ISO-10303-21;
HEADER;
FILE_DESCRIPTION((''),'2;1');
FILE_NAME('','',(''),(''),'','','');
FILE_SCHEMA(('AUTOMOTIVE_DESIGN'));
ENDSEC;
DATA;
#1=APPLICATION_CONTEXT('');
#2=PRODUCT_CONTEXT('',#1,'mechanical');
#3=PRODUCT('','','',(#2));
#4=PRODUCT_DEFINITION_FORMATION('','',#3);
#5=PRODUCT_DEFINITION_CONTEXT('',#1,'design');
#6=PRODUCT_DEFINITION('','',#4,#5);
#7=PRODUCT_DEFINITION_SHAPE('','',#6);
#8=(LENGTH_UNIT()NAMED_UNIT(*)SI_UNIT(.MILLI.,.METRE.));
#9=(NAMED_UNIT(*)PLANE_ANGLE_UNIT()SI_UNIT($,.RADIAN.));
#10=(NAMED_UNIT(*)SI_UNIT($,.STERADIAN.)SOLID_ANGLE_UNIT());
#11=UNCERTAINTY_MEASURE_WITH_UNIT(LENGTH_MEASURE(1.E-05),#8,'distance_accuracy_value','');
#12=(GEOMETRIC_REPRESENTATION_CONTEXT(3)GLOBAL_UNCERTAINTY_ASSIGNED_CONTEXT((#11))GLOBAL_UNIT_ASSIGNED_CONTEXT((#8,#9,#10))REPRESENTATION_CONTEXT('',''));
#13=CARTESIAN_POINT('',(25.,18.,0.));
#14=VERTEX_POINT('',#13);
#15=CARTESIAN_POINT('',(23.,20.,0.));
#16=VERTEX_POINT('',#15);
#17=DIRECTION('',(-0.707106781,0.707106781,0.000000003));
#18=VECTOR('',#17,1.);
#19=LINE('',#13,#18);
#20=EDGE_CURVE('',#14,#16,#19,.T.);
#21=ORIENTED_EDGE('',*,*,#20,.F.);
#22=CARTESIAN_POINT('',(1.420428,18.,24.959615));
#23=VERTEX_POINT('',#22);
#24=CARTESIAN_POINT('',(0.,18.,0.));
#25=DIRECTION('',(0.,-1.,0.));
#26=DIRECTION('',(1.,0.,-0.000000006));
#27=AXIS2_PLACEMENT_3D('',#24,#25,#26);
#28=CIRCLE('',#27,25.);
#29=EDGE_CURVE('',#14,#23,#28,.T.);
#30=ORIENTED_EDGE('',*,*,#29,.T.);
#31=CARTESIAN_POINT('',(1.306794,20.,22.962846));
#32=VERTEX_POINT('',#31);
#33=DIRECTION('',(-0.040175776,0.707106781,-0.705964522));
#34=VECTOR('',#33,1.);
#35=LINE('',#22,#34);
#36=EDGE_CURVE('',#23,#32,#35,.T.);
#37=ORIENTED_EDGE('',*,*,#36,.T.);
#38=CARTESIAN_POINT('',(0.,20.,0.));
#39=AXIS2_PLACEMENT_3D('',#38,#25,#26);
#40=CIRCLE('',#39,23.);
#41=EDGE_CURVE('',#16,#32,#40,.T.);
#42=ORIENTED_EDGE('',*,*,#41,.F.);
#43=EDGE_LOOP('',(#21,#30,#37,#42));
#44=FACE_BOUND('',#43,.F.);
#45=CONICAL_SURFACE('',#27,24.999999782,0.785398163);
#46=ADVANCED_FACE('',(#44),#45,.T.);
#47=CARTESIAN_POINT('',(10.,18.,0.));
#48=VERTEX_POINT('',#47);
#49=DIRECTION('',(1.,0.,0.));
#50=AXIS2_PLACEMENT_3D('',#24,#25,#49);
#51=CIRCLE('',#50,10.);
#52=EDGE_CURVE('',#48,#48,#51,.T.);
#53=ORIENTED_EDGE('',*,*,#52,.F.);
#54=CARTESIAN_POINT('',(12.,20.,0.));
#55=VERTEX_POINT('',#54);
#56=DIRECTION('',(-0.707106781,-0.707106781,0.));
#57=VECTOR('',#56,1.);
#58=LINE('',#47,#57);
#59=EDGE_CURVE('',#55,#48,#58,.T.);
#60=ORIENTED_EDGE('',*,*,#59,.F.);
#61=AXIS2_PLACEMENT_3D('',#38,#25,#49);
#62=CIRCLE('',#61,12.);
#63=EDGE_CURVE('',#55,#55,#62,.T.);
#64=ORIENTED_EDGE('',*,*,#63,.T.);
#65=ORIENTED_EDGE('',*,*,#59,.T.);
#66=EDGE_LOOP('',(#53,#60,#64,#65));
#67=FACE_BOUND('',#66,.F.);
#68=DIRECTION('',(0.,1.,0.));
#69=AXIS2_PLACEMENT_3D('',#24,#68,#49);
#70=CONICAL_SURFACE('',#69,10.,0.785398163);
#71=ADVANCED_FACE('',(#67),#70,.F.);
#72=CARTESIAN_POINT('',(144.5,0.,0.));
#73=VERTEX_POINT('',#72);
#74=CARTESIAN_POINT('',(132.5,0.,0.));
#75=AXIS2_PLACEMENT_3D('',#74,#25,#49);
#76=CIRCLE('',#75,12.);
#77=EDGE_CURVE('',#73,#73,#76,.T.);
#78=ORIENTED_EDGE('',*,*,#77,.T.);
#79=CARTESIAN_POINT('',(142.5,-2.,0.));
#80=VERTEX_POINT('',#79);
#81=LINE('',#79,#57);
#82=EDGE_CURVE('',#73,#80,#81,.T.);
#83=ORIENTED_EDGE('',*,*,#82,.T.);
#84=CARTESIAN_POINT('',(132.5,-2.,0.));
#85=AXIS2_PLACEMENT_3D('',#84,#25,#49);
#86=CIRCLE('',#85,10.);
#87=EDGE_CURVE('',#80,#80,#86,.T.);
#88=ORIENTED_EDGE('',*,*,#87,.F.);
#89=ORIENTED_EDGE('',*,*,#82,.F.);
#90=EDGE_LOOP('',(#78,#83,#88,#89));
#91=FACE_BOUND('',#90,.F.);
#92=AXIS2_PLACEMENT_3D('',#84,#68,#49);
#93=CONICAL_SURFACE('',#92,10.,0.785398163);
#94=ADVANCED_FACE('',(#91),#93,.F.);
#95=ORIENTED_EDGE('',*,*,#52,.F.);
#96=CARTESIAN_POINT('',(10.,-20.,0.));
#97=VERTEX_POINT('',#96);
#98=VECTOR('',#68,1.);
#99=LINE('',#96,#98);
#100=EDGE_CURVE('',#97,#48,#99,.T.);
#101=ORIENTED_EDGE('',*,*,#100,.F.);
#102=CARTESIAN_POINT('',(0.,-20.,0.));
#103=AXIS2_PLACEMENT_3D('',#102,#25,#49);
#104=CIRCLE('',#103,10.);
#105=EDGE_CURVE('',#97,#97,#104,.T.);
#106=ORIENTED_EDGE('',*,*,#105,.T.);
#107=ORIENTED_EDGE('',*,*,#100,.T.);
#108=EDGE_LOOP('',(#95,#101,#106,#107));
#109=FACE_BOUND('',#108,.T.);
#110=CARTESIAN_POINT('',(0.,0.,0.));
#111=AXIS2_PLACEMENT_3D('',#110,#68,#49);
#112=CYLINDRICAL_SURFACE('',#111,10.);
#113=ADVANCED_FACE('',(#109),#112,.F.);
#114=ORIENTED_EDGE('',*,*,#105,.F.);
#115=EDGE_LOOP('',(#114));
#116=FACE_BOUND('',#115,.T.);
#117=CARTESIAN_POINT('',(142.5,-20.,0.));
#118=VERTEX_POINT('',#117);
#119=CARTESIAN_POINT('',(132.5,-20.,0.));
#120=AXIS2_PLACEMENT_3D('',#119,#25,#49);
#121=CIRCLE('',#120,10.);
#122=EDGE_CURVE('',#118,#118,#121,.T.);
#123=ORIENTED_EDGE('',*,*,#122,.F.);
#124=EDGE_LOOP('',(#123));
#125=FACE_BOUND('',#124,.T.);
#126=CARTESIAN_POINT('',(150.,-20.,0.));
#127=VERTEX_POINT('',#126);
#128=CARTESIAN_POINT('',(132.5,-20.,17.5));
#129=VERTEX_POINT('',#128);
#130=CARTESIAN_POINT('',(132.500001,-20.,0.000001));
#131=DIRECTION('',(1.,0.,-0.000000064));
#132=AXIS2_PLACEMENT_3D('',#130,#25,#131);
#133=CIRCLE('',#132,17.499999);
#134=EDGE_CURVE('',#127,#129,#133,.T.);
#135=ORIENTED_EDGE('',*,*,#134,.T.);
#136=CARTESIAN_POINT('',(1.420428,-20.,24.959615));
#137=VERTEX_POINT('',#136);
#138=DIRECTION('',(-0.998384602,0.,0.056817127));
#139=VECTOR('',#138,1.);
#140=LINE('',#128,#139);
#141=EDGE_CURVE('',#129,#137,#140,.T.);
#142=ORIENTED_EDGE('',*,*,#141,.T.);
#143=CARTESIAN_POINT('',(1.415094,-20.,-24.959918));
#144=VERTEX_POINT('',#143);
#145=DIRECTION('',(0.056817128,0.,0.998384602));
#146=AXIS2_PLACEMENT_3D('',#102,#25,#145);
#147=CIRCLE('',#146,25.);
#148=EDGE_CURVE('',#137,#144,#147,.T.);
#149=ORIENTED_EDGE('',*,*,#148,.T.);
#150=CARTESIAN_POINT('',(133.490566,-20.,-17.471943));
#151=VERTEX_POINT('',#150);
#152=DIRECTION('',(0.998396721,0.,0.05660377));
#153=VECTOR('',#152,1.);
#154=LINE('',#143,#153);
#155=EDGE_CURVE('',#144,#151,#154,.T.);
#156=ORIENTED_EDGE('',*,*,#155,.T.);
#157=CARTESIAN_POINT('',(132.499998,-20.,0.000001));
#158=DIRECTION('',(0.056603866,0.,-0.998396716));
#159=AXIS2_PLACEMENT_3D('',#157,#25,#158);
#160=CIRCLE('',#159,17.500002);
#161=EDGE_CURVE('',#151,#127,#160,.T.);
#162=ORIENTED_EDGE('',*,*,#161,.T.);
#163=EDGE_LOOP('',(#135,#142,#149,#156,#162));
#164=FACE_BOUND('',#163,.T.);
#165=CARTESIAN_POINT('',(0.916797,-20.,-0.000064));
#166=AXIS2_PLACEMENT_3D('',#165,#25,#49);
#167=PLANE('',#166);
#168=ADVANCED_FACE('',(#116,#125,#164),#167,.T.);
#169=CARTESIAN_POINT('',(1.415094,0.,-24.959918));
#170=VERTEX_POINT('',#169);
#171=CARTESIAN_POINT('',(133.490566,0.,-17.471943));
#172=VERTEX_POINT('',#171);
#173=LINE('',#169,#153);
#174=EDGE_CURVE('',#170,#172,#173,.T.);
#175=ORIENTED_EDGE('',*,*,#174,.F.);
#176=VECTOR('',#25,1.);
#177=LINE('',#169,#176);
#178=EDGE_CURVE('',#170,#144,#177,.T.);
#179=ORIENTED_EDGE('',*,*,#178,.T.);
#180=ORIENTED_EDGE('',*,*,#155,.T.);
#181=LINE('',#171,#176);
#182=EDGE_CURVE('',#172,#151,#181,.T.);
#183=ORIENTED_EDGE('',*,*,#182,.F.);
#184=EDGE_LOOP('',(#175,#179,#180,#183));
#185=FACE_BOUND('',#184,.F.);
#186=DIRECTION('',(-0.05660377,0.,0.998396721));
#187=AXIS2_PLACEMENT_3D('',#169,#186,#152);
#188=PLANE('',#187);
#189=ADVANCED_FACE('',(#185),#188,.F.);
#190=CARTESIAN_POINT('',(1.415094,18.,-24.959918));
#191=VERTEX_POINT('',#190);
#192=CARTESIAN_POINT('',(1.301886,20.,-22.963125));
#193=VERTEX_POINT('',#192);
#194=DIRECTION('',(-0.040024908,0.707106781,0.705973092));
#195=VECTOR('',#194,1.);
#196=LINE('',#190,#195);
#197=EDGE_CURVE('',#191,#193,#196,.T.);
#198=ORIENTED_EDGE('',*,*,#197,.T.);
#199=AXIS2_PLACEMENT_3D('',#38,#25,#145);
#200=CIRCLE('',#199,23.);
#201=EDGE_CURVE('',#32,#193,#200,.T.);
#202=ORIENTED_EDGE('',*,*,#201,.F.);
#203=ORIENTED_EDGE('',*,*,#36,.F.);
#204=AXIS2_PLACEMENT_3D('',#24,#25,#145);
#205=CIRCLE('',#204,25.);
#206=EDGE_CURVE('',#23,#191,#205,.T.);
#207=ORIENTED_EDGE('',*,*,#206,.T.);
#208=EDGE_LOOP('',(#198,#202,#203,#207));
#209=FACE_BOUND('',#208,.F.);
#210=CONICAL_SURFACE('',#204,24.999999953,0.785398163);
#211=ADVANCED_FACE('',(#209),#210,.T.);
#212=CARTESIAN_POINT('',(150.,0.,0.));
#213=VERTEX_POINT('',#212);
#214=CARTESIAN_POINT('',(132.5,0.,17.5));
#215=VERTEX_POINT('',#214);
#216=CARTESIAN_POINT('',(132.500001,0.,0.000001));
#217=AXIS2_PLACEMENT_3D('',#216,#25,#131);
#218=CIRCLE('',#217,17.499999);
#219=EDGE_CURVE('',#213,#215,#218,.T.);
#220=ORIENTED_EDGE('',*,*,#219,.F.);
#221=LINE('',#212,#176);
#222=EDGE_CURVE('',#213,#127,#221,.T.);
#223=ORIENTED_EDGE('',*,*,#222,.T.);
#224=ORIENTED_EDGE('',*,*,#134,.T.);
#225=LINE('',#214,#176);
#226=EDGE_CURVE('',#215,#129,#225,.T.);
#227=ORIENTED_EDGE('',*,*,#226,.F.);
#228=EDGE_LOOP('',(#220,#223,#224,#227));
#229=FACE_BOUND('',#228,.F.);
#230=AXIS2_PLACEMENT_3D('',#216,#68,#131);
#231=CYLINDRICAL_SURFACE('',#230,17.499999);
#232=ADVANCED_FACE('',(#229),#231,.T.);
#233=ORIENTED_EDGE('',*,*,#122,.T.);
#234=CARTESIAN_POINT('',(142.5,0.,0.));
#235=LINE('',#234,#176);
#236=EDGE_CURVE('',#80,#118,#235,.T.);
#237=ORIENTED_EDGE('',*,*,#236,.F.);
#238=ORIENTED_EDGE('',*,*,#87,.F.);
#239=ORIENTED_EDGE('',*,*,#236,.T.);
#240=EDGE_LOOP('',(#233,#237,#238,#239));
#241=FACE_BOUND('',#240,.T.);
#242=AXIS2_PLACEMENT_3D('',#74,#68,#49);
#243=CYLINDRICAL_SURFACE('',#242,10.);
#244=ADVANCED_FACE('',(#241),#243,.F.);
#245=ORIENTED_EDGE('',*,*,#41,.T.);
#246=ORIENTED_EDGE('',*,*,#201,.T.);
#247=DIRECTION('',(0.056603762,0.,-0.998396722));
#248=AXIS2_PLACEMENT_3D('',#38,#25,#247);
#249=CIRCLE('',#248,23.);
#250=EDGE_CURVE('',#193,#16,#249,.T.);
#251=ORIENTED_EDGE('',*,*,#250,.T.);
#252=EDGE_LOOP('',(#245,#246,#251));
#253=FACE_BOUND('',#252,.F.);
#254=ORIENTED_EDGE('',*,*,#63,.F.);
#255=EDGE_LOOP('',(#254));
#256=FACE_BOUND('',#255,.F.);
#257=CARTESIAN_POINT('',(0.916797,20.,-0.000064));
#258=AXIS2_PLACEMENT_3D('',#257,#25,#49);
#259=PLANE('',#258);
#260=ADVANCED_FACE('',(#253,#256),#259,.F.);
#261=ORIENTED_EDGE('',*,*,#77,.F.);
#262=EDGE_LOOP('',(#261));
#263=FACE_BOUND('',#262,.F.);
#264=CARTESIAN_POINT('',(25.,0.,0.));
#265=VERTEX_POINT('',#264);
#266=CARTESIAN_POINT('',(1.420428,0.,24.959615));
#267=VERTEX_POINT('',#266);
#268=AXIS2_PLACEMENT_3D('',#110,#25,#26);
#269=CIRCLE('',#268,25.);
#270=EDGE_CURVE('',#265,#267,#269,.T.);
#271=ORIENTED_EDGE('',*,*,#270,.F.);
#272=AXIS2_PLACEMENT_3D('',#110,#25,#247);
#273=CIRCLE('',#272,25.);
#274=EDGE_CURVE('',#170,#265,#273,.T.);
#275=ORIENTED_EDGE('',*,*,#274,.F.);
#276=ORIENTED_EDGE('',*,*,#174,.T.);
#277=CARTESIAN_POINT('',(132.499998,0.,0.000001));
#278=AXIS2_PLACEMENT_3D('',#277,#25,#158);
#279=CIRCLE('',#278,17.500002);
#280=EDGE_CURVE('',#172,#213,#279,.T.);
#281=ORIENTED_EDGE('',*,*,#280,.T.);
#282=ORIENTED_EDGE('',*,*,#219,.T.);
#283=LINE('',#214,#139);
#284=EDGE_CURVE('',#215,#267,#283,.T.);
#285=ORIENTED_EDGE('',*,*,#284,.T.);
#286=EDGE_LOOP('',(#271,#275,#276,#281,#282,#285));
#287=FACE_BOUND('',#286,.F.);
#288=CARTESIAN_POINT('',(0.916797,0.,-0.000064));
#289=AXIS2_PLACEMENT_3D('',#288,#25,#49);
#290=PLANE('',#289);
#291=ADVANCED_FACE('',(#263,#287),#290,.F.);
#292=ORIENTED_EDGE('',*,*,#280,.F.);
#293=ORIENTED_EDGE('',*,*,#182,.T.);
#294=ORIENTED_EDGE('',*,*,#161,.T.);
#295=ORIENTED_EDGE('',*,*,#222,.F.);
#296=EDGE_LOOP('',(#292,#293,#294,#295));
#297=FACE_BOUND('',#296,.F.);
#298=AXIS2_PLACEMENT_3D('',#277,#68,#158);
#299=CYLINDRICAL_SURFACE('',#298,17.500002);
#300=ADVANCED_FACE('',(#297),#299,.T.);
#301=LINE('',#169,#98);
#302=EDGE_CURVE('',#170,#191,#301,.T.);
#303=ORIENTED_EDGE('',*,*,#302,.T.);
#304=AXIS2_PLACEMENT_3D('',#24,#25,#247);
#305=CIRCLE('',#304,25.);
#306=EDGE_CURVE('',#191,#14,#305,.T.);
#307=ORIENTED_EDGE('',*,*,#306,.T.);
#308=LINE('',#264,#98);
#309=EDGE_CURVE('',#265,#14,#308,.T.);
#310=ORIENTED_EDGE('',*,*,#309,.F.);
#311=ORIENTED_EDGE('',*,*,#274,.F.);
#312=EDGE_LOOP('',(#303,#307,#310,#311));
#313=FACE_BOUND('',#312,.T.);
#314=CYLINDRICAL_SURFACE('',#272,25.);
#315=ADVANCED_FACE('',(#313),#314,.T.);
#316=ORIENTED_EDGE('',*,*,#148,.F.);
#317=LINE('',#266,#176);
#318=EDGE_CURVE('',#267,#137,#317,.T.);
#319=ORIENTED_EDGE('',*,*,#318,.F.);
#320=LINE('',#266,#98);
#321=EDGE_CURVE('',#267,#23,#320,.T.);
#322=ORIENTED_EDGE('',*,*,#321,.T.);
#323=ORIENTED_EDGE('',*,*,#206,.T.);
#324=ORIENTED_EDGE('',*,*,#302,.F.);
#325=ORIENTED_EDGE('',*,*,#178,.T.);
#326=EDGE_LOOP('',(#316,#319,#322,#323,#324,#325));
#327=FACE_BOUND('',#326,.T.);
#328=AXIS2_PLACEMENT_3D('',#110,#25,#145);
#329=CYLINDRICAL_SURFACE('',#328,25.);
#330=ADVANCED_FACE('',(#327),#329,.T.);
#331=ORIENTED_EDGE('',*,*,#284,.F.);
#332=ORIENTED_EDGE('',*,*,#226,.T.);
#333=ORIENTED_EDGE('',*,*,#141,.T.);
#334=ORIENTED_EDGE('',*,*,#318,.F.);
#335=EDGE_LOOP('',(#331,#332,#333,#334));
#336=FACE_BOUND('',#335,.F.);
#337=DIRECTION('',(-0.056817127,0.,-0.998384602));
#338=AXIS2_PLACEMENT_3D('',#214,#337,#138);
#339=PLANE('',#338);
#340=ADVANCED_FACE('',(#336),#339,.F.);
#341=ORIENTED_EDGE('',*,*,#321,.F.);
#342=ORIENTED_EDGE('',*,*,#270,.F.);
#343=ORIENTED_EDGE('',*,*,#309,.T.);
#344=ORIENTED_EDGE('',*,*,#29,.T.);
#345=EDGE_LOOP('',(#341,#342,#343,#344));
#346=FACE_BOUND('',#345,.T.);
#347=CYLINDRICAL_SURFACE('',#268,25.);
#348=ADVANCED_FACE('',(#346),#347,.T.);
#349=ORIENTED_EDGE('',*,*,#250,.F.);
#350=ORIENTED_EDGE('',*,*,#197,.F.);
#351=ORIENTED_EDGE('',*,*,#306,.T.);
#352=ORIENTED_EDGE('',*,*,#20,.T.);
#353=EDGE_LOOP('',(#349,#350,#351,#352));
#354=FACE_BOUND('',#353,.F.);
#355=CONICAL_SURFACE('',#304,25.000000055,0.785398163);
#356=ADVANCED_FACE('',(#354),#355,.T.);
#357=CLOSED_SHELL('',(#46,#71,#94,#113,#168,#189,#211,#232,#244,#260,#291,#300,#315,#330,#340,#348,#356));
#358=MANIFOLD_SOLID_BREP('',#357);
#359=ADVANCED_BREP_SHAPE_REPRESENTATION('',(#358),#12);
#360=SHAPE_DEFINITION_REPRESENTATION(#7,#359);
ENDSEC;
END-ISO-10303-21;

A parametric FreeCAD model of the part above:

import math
import FreeCAD as App
import Part
import Sketcher


def edges_at(feature, points):
    """Names of the edges that pass closest to the given points."""
    edges = feature.Shape.Edges
    near = lambda p: min(range(len(edges)), key=lambda i: edges[i].distToShape(Part.Vertex(*p))[0])
    return sorted({f"Edge{near(p) + 1}" for p in points})

doc = App.newDocument("Part")
body = doc.addObject("PartDesign::Body", "Body")

sketch1 = doc.addObject("Sketcher::SketchObject", "Sketch")
body.addObject(sketch1)
sketch1.AttachmentSupport = (doc.XZ_Plane, [""])
sketch1.MapMode = "FlatFace"
sketch1.addGeometry([
    Part.ArcOfCircle(Part.Circle(App.Vector(0, 0, 0), App.Vector(0, 0, 1), 25), math.radians(86.742864), math.radians(273.244891)),
    Part.LineSegment(App.Vector(1.415094, -24.959918, 0), App.Vector(133.490566, -17.471943, 0)),
    Part.ArcOfCircle(Part.Circle(App.Vector(132.499998, 0.000001, 0), App.Vector(0, 0, 1), 17.500002), math.radians(-86.755103), math.radians(-0.000004)),
    Part.ArcOfCircle(Part.Circle(App.Vector(132.500001, 0.000001, 0), App.Vector(0, 0, 1), 17.499999), math.radians(-0.000004), math.radians(90.000004)),
    Part.LineSegment(App.Vector(132.5, 17.5, 0), App.Vector(1.420428, 24.959615, 0)),
    Part.Circle(App.Vector(0, 0, 0), App.Vector(0, 0, 1), 10),
    Part.Circle(App.Vector(132.5, 0, 0), App.Vector(0, 0, 1), 10),
], False)
sketch1.addConstraint([
    Sketcher.Constraint("Tangent", 0, 2, 1, 1),
    Sketcher.Constraint("Tangent", 1, 2, 2, 1),
    Sketcher.Constraint("Tangent", 2, 2, 3, 1),
    Sketcher.Constraint("Coincident", 3, 2, 4, 1),
    Sketcher.Constraint("Tangent", 4, 2, 0, 1),
    Sketcher.Constraint("Coincident", 0, 3, -1, 1),
    Sketcher.Constraint("Coincident", 5, 3, -1, 1),
    Sketcher.Constraint("Coincident", 6, 3, 2, 3),
    Sketcher.Constraint("Equal", 5, 6),
    Sketcher.Constraint("PointOnObject", 2, 3, -1),
    Sketcher.Constraint("PointOnObject", 2, 2, -1),
    Sketcher.Constraint("Vertical", 6, 3, 3, 2),
    Sketcher.Constraint("Diameter", 5, 20.0),
    Sketcher.Constraint("Radius", 0, 25.0),
    Sketcher.Constraint("Radius", 2, 17.500002),
    Sketcher.Constraint("Radius", 3, 17.499999),
    Sketcher.Constraint("DistanceX", -1, 1, 2, 2, 150.0),
])
pad1 = doc.addObject("PartDesign::Pad", "Pad")
body.addObject(pad1)
pad1.Profile = sketch1
pad1.Length = 20

sketch2 = doc.addObject("Sketcher::SketchObject", "Sketch001")
body.addObject(sketch2)
sketch2.AttachmentSupport = (doc.XZ_Plane, [""])
sketch2.MapMode = "FlatFace"
sketch2.addGeometry([
    Part.ArcOfCircle(Part.Circle(App.Vector(0, 0, 0), App.Vector(0, 0, 1), 25), math.radians(-86.755109), math.radians(0)),
    Part.ArcOfCircle(Part.Circle(App.Vector(0, 0, 0), App.Vector(0, 0, 1), 25), math.radians(0), math.radians(86.742865)),
    Part.ArcOfCircle(Part.Circle(App.Vector(0, 0, 0), App.Vector(0, 0, 1), 25), math.radians(86.742864), math.radians(273.244891)),
    Part.Circle(App.Vector(0, 0, 0), App.Vector(0, 0, 1), 10),
], False)
sketch2.addConstraint([
    Sketcher.Constraint("Tangent", 0, 2, 1, 1),
    Sketcher.Constraint("Tangent", 1, 2, 2, 1),
    Sketcher.Constraint("Tangent", 2, 2, 0, 1),
    Sketcher.Constraint("Coincident", 0, 3, -1, 1),
    Sketcher.Constraint("Coincident", 3, 3, -1, 1),
    Sketcher.Constraint("PointOnObject", 0, 2, -1),
    Sketcher.Constraint("Diameter", 3, 20.0),
    Sketcher.Constraint("Radius", 0, 25.0),
    Sketcher.Constraint("DistanceX", -1, 1, 1, 2, 1.420428),
    Sketcher.Constraint("DistanceY", 2, 2, 0, 3, 24.959918),
])
pad2 = doc.addObject("PartDesign::Pad", "Pad001")
body.addObject(pad2)
pad2.Profile = sketch2
pad2.Length = 20
pad2.Reversed = True
doc.recompute()

chamfer = doc.addObject("PartDesign::Chamfer", "Chamfer")
body.addObject(chamfer)
chamfer.Base = (pad2, edges_at(pad2, [(-10, 20, 0), (-25, 20, 0.003), (122.5, 0, 0)]))
chamfer.Size = 2

doc.recompute()
